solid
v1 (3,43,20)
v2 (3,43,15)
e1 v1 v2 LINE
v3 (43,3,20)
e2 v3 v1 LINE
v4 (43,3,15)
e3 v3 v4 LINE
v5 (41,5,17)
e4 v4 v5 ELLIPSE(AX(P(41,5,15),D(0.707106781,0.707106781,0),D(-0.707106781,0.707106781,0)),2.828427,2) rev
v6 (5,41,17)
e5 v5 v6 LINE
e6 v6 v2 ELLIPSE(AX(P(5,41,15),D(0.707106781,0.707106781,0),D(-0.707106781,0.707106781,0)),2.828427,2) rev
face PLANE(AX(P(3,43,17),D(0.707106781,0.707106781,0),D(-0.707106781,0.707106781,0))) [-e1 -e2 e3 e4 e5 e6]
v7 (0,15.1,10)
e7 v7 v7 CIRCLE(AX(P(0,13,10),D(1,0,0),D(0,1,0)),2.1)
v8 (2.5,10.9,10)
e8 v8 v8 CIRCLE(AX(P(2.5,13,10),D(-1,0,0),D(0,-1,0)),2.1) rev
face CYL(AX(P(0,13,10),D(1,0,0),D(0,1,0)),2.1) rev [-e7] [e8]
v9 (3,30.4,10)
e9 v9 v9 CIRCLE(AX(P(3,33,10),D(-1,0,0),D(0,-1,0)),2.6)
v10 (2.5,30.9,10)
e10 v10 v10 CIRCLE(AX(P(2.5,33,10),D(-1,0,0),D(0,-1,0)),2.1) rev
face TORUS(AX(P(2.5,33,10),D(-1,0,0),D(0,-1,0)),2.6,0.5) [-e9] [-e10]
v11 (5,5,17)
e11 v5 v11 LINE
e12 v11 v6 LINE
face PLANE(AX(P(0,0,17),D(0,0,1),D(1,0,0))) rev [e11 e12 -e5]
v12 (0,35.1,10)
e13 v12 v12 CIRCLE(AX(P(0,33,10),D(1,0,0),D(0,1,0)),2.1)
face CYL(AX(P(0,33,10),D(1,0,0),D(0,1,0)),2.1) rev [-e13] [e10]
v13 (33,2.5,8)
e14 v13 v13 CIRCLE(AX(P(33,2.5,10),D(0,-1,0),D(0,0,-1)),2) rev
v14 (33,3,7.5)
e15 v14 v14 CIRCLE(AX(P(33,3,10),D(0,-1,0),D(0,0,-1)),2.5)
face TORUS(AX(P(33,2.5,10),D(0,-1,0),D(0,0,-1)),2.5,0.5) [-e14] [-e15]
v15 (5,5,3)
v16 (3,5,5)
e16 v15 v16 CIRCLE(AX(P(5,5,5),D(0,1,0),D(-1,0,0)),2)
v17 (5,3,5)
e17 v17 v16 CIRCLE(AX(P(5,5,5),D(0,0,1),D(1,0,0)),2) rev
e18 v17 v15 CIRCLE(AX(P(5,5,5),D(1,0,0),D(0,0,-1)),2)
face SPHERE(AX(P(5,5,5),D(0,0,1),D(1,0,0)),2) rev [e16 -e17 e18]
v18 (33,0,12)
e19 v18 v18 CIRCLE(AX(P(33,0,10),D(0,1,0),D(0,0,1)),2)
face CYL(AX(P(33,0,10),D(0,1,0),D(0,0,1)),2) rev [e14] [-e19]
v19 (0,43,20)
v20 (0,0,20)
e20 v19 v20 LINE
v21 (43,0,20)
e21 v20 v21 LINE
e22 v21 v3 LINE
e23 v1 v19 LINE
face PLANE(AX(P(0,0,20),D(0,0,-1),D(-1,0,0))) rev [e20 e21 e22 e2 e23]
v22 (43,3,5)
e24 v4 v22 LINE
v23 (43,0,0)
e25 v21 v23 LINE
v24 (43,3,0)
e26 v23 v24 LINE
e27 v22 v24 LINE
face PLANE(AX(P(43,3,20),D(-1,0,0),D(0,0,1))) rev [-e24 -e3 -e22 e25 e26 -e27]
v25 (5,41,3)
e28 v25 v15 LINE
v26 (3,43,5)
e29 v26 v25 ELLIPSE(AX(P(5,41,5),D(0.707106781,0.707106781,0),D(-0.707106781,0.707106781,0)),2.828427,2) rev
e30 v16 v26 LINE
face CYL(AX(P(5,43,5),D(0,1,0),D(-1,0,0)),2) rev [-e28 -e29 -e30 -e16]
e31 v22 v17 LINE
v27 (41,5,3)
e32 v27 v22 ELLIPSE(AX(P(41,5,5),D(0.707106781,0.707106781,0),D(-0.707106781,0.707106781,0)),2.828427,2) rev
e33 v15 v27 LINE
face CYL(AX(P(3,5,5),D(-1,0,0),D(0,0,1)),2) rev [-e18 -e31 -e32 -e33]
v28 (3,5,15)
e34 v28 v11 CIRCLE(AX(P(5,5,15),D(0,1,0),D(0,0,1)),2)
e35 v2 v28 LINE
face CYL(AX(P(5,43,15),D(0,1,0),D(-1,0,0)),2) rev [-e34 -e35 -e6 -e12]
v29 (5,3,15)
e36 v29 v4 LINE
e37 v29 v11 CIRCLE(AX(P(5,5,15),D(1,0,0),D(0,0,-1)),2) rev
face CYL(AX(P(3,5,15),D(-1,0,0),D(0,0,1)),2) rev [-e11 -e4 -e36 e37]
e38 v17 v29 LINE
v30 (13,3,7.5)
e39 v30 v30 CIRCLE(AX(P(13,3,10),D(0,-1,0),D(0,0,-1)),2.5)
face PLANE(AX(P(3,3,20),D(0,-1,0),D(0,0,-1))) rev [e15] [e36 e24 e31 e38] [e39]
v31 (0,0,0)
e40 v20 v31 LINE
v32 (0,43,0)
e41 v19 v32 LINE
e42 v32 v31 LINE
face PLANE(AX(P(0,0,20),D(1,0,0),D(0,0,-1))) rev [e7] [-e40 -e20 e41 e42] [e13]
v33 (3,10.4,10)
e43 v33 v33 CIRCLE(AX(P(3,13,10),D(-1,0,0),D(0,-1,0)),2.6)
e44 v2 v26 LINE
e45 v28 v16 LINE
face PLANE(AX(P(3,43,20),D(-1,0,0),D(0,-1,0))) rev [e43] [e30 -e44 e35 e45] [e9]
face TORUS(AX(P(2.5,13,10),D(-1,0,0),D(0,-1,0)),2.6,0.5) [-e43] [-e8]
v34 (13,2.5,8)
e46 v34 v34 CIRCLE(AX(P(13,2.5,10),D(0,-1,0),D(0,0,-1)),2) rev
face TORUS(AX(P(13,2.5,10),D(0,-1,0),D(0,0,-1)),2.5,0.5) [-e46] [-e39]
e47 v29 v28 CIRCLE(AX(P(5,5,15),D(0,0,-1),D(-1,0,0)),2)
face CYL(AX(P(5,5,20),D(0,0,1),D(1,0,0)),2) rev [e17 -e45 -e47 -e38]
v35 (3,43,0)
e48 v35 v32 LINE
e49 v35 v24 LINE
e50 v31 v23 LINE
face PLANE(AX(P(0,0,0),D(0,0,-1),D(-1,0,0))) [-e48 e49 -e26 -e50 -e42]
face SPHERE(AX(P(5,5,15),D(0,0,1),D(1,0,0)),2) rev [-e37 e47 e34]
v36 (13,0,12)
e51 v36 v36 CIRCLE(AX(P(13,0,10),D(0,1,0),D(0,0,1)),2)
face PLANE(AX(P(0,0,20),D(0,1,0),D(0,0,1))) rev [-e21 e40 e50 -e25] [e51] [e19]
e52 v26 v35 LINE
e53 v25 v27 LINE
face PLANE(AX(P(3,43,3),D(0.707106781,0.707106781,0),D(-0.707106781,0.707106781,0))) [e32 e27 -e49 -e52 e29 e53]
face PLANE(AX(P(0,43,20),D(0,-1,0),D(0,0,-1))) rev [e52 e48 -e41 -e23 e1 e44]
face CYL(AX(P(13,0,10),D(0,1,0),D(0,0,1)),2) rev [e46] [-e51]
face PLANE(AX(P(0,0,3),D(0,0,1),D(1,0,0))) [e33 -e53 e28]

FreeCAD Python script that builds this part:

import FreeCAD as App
import Part
import Sketcher
from FreeCAD import Vector
Q = App.Units.Quantity


def edges_at(feature, points):
    """Names of the edges that pass closest to the given points."""
    edges = feature.Shape.Edges
    near = lambda p: min(range(len(edges)), key=lambda i: edges[i].distToShape(Part.Vertex(*p))[0])
    return sorted({f"Edge{near(p) + 1}" for p in points})

doc = App.newDocument("Part")
body = doc.addObject("PartDesign::Body", "Body")

# Sketch on XY plane
sketch1 = body.newObject("Sketcher::SketchObject", "Sketch")
sketch1.AttachmentSupport = (doc.getObject("XY_Plane"), [""])
sketch1.MapMode = "FlatFace"
sketch1.addGeometry([
    Part.LineSegment(Vector(0, 43, 0), Vector(0, 0, 0)),  # 0
    Part.LineSegment(Vector(0, 0, 0), Vector(43, 0, 0)),  # 1
    Part.LineSegment(Vector(43, 0, 0), Vector(43, 3, 0)),  # 2
    Part.LineSegment(Vector(43, 3, 0), Vector(3, 3, 0)),  # 3
    Part.LineSegment(Vector(3, 3, 0), Vector(3, 43, 0)),  # 4
    Part.LineSegment(Vector(3, 43, 0), Vector(0, 43, 0)),  # 5
], False)
sketch1.addConstraint([
    Sketcher.Constraint("Coincident", 0, 2, 1, 1),
    Sketcher.Constraint("Coincident", 1, 2, 2, 1),
    Sketcher.Constraint("Coincident", 2, 2, 3, 1),
    Sketcher.Constraint("Coincident", 3, 2, 4, 1),
    Sketcher.Constraint("Coincident", 4, 2, 5, 1),
    Sketcher.Constraint("Coincident", 5, 2, 0, 1),
    Sketcher.Constraint("Vertical", 0),
    Sketcher.Constraint("Horizontal", 1),
    Sketcher.Constraint("Vertical", 2),
    Sketcher.Constraint("Horizontal", 3),
    Sketcher.Constraint("Vertical", 4),
    Sketcher.Constraint("Horizontal", 5),
    Sketcher.Constraint("Coincident", 0, 2, -1, 1),
    Sketcher.Constraint("Equal", 1, 0),
    Sketcher.Constraint("Equal", 5, 2),
    Sketcher.Constraint("DistanceX", 1, 1, 1, 2, Q("43 mm")),
    Sketcher.Constraint("DistanceX", 3, 2, 3, 1, Q("40 mm")),
])
pad1 = body.newObject("PartDesign::Pad", "Pad")
pad1.Profile = sketch1
pad1.Length = 20

# Sketch on XY plane
sketch2 = body.newObject("Sketcher::SketchObject", "Sketch001")
sketch2.AttachmentSupport = (doc.getObject("XY_Plane"), [""])
sketch2.MapMode = "FlatFace"
sketch2.AttachmentOffset = App.Placement(Vector(0, 0, 20), App.Rotation())
sketch2.addGeometry([
    Part.LineSegment(Vector(43, 3, 0), Vector(3, 43, 0)),
    Part.LineSegment(Vector(3, 43, 0), Vector(3, 3, 0)),
    Part.LineSegment(Vector(3, 3, 0), Vector(43, 3, 0)),
], False)
sketch2.addConstraint([
    Sketcher.Constraint("Coincident", 0, 2, 1, 1),
    Sketcher.Constraint("Coincident", 1, 2, 2, 1),
    Sketcher.Constraint("Coincident", 2, 2, 0, 1),
    Sketcher.Constraint("Vertical", 1),
    Sketcher.Constraint("Horizontal", 2),
    Sketcher.Constraint("Equal", 2, 1),
    Sketcher.Constraint("DistanceX", 2, 1, 2, 2, Q("40 mm")),
    Sketcher.Constraint("DistanceX", -1, 1, 0, 2, Q("3 mm")),
    Sketcher.Constraint("DistanceY", -1, 1, 0, 2, Q("43 mm")),
])
pad2 = body.newObject("PartDesign::Pad", "Pad001")
pad2.Profile = sketch2
pad2.Length = 3
pad2.Reversed = True

# Sketch on XY plane
sketch3 = body.newObject("Sketcher::SketchObject", "Sketch002")
sketch3.AttachmentSupport = (doc.getObject("XY_Plane"), [""])
sketch3.MapMode = "FlatFace"
sketch3.addGeometry([
    Part.LineSegment(Vector(3, 43, 0), Vector(43, 3, 0)),
    Part.LineSegment(Vector(43, 3, 0), Vector(3, 3, 0)),
    Part.LineSegment(Vector(3, 3, 0), Vector(3, 43, 0)),
], False)
sketch3.addConstraint([
    Sketcher.Constraint("Coincident", 0, 2, 1, 1),
    Sketcher.Constraint("Coincident", 1, 2, 2, 1),
    Sketcher.Constraint("Coincident", 2, 2, 0, 1),
    Sketcher.Constraint("Horizontal", 1),
    Sketcher.Constraint("Vertical", 2),
    Sketcher.Constraint("Equal", 1, 2),
    Sketcher.Constraint("DistanceX", 1, 2, 1, 1, Q("40 mm")),
    Sketcher.Constraint("DistanceX", -1, 1, 0, 2, Q("43 mm")),
    Sketcher.Constraint("DistanceY", -1, 1, 0, 2, Q("3 mm")),
])
pad3 = body.newObject("PartDesign::Pad", "Pad002")
pad3.Profile = sketch3
pad3.Length = 3

# Sketch on YZ plane
sketch4 = body.newObject("Sketcher::SketchObject", "Sketch003")
sketch4.AttachmentSupport = (doc.getObject("YZ_Plane"), [""])
sketch4.MapMode = "FlatFace"
sketch4.AttachmentOffset = App.Placement(Vector(0, 0, 3), App.Rotation())
sketch4.addGeometry([
    Part.Circle(Vector(33, 10, 0), Vector(0, 0, 1), 2.1),
    Part.Circle(Vector(13, 10, 0), Vector(0, 0, 1), 2.1),
], False)
sketch4.addConstraint([
    Sketcher.Constraint("Equal", 0, 1),
    Sketcher.Constraint("Horizontal", 0, 3, 1, 3),
    Sketcher.Constraint("Diameter", 0, Q("4.2 mm")),
    Sketcher.Constraint("DistanceX", -1, 1, 0, 3, Q("33 mm")),
    Sketcher.Constraint("DistanceY", -1, 1, 0, 3, Q("10 mm")),
    Sketcher.Constraint("DistanceX", -1, 1, 1, 3, Q("13 mm")),
])
pocket1 = body.newObject("PartDesign::Pocket", "Pocket")
pocket1.Profile = sketch4
pocket1.Type = "ThroughAll"

# Sketch on XZ plane
sketch5 = body.newObject("Sketcher::SketchObject", "Sketch004")
sketch5.AttachmentSupport = (doc.getObject("XZ_Plane"), [""])
sketch5.MapMode = "FlatFace"
sketch5.AttachmentOffset = App.Placement(Vector(0, 0, -3), App.Rotation())
sketch5.addGeometry([
    Part.Circle(Vector(13, 10, 0), Vector(0, 0, 1), 2),
    Part.Circle(Vector(33, 10, 0), Vector(0, 0, 1), 2),
], False)
sketch5.addConstraint([
    Sketcher.Constraint("Equal", 0, 1),
    Sketcher.Constraint("Horizontal", 0, 3, 1, 3),
    Sketcher.Constraint("Diameter", 0, Q("4 mm")),
    Sketcher.Constraint("DistanceX", -1, 1, 0, 3, Q("13 mm")),
    Sketcher.Constraint("DistanceY", -1, 1, 0, 3, Q("10 mm")),
    Sketcher.Constraint("DistanceX", -1, 1, 1, 3, Q("33 mm")),
])
pocket2 = body.newObject("PartDesign::Pocket", "Pocket001")
pocket2.Profile = sketch5
pocket2.Length = 3
pocket2.Reversed = True
doc.recompute()

fillet = body.newObject("PartDesign::Fillet", "Fillet")
fillet.Base = (pocket2, edges_at(pocket2, [
    (3, 3, 10),
    (3, 23, 17),
    (23, 3, 17),
    (3, 23, 3),
    (23, 3, 3),
]))
fillet.Radius = 2
doc.recompute()

fillet2 = body.newObject("PartDesign::Fillet", "Fillet001")
fillet2.Base = (fillet, edges_at(fillet, [
    (3, 30.9, 10),
    (3, 10.9, 10),
    (13, 3, 8),
    (33, 3, 8),
]))
fillet2.Radius = 0.5

doc.recompute()
